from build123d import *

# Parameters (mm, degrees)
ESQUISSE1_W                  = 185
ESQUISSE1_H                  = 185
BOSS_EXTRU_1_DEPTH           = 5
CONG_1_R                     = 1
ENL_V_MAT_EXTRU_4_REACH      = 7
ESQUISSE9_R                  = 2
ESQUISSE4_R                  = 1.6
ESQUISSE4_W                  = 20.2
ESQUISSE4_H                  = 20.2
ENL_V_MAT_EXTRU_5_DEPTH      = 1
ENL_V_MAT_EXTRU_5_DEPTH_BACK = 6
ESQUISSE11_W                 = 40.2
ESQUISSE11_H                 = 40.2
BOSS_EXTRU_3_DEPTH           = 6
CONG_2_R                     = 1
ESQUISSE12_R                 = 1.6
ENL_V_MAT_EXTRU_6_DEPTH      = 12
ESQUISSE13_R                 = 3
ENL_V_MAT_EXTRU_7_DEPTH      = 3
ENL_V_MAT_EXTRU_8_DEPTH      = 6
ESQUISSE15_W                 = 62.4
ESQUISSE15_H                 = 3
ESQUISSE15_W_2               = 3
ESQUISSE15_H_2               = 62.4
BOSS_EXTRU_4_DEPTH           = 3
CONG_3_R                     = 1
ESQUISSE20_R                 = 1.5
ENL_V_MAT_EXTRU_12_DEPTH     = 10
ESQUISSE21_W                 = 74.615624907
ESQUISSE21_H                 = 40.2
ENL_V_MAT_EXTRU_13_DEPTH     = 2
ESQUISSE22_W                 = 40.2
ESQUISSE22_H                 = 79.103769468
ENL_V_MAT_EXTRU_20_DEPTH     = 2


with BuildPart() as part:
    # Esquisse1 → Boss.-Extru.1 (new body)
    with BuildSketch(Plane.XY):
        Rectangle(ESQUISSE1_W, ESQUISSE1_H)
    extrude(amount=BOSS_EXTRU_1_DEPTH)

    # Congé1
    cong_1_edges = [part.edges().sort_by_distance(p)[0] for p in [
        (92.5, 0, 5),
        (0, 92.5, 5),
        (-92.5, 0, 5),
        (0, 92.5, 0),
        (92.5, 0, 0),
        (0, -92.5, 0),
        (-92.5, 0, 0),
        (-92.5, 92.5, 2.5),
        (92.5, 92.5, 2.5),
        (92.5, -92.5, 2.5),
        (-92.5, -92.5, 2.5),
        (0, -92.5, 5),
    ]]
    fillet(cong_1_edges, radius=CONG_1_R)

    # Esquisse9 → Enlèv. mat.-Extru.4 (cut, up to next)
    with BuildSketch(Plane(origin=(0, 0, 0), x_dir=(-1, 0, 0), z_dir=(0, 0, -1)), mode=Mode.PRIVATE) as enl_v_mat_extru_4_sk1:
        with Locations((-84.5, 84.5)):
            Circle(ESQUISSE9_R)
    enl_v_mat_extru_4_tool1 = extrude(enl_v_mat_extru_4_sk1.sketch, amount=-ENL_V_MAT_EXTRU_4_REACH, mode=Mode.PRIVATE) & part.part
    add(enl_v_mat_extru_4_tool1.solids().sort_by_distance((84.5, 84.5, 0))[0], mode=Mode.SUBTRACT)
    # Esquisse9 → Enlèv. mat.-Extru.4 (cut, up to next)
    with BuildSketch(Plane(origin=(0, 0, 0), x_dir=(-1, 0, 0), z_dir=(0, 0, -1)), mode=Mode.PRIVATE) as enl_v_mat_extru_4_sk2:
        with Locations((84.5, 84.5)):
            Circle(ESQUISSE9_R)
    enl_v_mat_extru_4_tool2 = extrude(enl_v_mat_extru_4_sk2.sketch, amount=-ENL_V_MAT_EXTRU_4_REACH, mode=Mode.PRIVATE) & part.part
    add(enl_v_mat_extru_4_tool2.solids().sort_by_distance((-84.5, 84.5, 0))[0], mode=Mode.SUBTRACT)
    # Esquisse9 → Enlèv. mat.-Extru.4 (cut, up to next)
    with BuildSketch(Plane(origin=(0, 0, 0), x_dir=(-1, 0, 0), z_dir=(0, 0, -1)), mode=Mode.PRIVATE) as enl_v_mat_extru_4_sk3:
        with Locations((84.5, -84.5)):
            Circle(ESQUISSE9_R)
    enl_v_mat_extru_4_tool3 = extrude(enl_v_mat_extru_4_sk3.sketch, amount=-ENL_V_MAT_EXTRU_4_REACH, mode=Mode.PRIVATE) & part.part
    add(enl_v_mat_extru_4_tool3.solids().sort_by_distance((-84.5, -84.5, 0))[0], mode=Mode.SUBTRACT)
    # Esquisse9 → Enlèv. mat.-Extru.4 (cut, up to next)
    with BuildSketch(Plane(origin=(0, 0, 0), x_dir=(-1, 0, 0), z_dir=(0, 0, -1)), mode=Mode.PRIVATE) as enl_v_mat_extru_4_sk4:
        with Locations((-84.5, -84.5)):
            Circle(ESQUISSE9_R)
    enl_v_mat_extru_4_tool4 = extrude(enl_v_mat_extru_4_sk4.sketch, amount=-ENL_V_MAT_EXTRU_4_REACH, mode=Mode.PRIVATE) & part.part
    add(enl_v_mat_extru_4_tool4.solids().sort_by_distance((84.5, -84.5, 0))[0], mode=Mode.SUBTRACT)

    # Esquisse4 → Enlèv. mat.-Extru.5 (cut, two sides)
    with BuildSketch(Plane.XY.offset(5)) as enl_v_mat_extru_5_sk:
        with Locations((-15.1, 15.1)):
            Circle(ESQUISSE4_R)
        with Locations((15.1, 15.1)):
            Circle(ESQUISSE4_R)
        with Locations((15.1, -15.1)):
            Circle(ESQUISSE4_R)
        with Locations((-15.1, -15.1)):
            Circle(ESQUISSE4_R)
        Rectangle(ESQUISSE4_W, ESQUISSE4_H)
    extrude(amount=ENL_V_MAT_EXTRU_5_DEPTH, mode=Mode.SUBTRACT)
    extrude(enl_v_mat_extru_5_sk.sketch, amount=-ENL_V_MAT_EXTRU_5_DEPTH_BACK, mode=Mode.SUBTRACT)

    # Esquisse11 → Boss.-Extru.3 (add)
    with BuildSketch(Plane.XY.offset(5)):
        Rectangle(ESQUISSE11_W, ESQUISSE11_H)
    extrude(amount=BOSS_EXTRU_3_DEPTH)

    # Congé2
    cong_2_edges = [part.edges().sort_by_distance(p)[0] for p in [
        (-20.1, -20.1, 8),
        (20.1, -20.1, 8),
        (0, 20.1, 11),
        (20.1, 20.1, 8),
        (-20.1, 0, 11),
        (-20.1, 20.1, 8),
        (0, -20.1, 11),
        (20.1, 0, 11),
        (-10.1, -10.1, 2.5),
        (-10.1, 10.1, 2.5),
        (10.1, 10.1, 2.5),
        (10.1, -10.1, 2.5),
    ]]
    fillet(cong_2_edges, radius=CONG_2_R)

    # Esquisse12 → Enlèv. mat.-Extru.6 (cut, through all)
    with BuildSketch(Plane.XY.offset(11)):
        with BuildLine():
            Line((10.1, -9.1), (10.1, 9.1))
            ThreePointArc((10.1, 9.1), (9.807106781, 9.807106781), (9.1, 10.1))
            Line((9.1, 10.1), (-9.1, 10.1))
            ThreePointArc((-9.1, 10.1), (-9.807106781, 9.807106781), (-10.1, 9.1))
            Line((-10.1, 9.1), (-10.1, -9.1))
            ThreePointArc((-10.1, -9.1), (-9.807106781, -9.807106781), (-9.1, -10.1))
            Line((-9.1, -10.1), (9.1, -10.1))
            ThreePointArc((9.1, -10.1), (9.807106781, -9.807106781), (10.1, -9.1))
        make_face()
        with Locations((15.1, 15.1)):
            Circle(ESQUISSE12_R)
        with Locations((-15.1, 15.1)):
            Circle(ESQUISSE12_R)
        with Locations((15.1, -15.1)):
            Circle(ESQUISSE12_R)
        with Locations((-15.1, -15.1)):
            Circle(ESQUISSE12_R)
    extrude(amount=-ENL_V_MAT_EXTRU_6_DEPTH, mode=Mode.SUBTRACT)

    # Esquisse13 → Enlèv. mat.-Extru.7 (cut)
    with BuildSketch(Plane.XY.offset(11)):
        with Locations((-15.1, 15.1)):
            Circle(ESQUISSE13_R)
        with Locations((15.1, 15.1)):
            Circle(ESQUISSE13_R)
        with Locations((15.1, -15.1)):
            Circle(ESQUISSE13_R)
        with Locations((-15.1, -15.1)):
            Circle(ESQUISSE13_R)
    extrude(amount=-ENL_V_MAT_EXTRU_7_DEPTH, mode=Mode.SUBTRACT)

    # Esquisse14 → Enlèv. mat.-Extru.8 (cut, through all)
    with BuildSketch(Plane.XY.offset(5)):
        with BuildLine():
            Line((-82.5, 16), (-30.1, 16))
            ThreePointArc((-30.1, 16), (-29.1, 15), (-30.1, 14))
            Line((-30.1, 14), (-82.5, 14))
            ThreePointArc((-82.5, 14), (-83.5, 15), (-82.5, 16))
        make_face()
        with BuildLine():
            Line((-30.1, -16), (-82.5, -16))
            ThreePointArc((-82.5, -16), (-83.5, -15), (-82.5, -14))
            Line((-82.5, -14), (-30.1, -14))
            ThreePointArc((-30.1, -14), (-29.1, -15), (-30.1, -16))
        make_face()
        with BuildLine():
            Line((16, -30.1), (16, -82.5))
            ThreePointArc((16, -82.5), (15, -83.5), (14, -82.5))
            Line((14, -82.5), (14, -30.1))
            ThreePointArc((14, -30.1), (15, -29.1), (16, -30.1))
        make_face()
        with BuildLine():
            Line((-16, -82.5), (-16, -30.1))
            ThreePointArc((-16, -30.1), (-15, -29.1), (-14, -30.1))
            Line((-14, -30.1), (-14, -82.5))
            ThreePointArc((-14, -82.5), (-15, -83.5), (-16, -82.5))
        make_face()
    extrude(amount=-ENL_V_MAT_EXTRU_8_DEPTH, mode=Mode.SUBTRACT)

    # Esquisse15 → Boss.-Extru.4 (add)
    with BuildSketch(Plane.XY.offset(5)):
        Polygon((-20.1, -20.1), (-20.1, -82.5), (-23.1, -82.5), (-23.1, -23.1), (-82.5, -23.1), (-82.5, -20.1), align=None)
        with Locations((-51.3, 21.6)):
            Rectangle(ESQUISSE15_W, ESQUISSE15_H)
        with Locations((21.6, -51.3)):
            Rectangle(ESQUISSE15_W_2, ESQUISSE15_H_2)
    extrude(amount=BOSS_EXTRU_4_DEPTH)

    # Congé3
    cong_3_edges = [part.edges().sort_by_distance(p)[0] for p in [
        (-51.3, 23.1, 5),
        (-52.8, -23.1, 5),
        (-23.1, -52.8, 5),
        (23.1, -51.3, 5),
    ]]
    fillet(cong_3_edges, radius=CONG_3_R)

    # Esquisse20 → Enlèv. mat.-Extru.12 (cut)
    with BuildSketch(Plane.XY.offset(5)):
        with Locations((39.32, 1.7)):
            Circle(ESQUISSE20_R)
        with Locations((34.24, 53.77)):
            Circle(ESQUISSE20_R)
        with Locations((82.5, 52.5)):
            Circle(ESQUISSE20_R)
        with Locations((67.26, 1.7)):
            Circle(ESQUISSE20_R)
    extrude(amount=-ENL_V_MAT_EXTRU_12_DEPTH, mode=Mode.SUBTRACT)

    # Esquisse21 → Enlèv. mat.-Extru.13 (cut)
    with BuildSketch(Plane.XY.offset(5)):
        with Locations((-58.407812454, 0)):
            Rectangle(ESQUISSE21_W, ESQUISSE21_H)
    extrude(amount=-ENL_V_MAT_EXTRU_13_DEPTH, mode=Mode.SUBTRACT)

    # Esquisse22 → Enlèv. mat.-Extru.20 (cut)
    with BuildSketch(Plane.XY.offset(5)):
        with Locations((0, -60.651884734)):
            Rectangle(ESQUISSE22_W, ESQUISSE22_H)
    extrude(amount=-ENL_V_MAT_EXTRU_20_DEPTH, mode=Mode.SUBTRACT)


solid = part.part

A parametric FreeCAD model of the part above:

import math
import FreeCAD as App
import Part
import Sketcher
from FreeCAD import Vector
Q = App.Units.Quantity


def edges_at(feature, points):
    """Names of the edges that pass closest to the given points."""
    edges = feature.Shape.Edges
    near = lambda p: min(range(len(edges)), key=lambda i: edges[i].distToShape(Part.Vertex(*p))[0])
    return sorted({f"Edge{near(p) + 1}" for p in points})

doc = App.newDocument("Part")
params = doc.addObject("Spreadsheet::Sheet", "Params")
for row, (alias, value) in enumerate([
    ("sketch1_width", "185 mm"),
    ("pad1_length", "5 mm"),
    ("fillet_radius", "1 mm"),
    ("sketch2_diameter", "4 mm"),
    ("sketch3_diameter", "4 mm"),
    ("sketch4_diameter", "4 mm"),
    ("sketch5_diameter", "4 mm"),
    ("sketch6_diameter", "3.2 mm"),
    ("sketch6_width", "20.2 mm"),
    ("sketch7_width", "40.2 mm"),
    ("pad2_length", "6 mm"),
    ("fillet2_radius", "1 mm"),
    ("sketch8_radius", "1 mm"),
    ("sketch8_diameter", "3.2 mm"),
    ("sketch8_width", "18.2 mm"),
    ("sketch9_diameter", "6 mm"),
    ("pocket7_length", "3 mm"),
    ("sketch10_radius", "1 mm"),
    ("sketch10_width", "52.4 mm"),
    ("sketch11_width", "3 mm"),
    ("sketch11_width2", "62.4 mm"),
    ("pad3_length", "3 mm"),
    ("fillet3_radius", "1 mm"),
    ("sketch12_diameter", "3 mm"),
    ("pocket9_length", "10 mm"),
    ("sketch13_height", "40.2 mm"),
    ("pocket10_length", "2 mm"),
    ("sketch14_width", "40.2 mm"),
    ("pocket11_length", "2 mm"),
], start=1):
    params.set(f"A{row}", alias)
    params.set(f"B{row}", "=" + value)
    params.setAlias(f"B{row}", alias)

body = doc.addObject("PartDesign::Body", "Body")

# Sketch on XY plane
sketch1 = doc.addObject("Sketcher::SketchObject", "Sketch")
body.addObject(sketch1)
sketch1.AttachmentSupport = (doc.XY_Plane, [""])
sketch1.MapMode = "FlatFace"
sketch1.addGeometry([
    Part.LineSegment(Vector(-92, 92, 0), Vector(-92, -92, 0)),
    Part.LineSegment(Vector(-92, -92, 0), Vector(92, -92, 0)),
    Part.LineSegment(Vector(92, -92, 0), Vector(92, 92, 0)),
    Part.LineSegment(Vector(92, 92, 0), Vector(-92, 92, 0)),
], False)
sketch1.addConstraint([
    Sketcher.Constraint("Coincident", 0, 2, 1, 1),
    Sketcher.Constraint("Coincident", 1, 2, 2, 1),
    Sketcher.Constraint("Coincident", 2, 2, 3, 1),
    Sketcher.Constraint("Coincident", 3, 2, 0, 1),
    Sketcher.Constraint("Vertical", 0),
    Sketcher.Constraint("Horizontal", 1),
    Sketcher.Constraint("Vertical", 2),
    Sketcher.Constraint("Horizontal", 3),
    Sketcher.Constraint("Symmetric", 0, 2, 2, 2, -1, 1),
    Sketcher.Constraint("Equal", 3, 0),
    Sketcher.Constraint("DistanceX", 1, 1, 1, 2, Q("185 mm")),
])
sketch1.setExpression("Constraints[10]", "Params.sketch1_width")
pad1 = doc.addObject("PartDesign::Pad", "Pad")
body.addObject(pad1)
pad1.Profile = sketch1
pad1.setExpression("Length", "Params.pad1_length")
doc.recompute()

fillet = doc.addObject("PartDesign::Fillet", "Fillet")
body.addObject(fillet)
fillet.Base = (pad1, ["Edge1"])
fillet.UseAllEdges = True
fillet.setExpression("Radius", "Params.fillet_radius")

# Sketch on XY plane
sketch2 = doc.addObject("Sketcher::SketchObject", "Sketch001")
body.addObject(sketch2)
sketch2.AttachmentSupport = (doc.XY_Plane, [""])
sketch2.MapMode = "FlatFace"
sketch2.addGeometry(Part.Circle(Vector(84.5, 84.5, 0), Vector(0, 0, 1), 2), False)
sketch2.addConstraint([
    Sketcher.Constraint("Diameter", 0, Q("4 mm")),
    Sketcher.Constraint("DistanceX", -1, 1, 0, 3, Q("84.5 mm")),
    Sketcher.Constraint("DistanceY", -1, 1, 0, 3, Q("84.5 mm")),
])
sketch2.setExpression("Constraints[0]", "Params.sketch2_diameter")
pocket1 = doc.addObject("PartDesign::Pocket", "Pocket")
body.addObject(pocket1)
pocket1.Profile = sketch2
pocket1.Type = "UpToFirst"
pocket1.Reversed = True

# Sketch on XY plane
sketch3 = doc.addObject("Sketcher::SketchObject", "Sketch002")
body.addObject(sketch3)
sketch3.AttachmentSupport = (doc.XY_Plane, [""])
sketch3.MapMode = "FlatFace"
sketch3.addGeometry(Part.Circle(Vector(-84.5, 84.5, 0), Vector(0, 0, 1), 2), False)
sketch3.addConstraint([
    Sketcher.Constraint("Diameter", 0, Q("4 mm")),
    Sketcher.Constraint("DistanceX", 0, 3, -1, 1, Q("84.5 mm")),
    Sketcher.Constraint("DistanceY", -1, 1, 0, 3, Q("84.5 mm")),
])
sketch3.setExpression("Constraints[0]", "Params.sketch3_diameter")
pocket2 = doc.addObject("PartDesign::Pocket", "Pocket001")
body.addObject(pocket2)
pocket2.Profile = sketch3
pocket2.Type = "UpToFirst"
pocket2.Reversed = True

# Sketch on XY plane
sketch4 = doc.addObject("Sketcher::SketchObject", "Sketch003")
body.addObject(sketch4)
sketch4.AttachmentSupport = (doc.XY_Plane, [""])
sketch4.MapMode = "FlatFace"
sketch4.addGeometry(Part.Circle(Vector(-84.5, -84.5, 0), Vector(0, 0, 1), 2), False)
sketch4.addConstraint([
    Sketcher.Constraint("Diameter", 0, Q("4 mm")),
    Sketcher.Constraint("DistanceX", 0, 3, -1, 1, Q("84.5 mm")),
    Sketcher.Constraint("DistanceY", 0, 3, -1, 1, Q("84.5 mm")),
])
sketch4.setExpression("Constraints[0]", "Params.sketch4_diameter")
pocket3 = doc.addObject("PartDesign::Pocket", "Pocket002")
body.addObject(pocket3)
pocket3.Profile = sketch4
pocket3.Type = "UpToFirst"
pocket3.Reversed = True

# Sketch on XY plane
sketch5 = doc.addObject("Sketcher::SketchObject", "Sketch004")
body.addObject(sketch5)
sketch5.AttachmentSupport = (doc.XY_Plane, [""])
sketch5.MapMode = "FlatFace"
sketch5.addGeometry(Part.Circle(Vector(84.5, -84.5, 0), Vector(0, 0, 1), 2), False)
sketch5.addConstraint([
    Sketcher.Constraint("Diameter", 0, Q("4 mm")),
    Sketcher.Constraint("DistanceX", -1, 1, 0, 3, Q("84.5 mm")),
    Sketcher.Constraint("DistanceY", 0, 3, -1, 1, Q("84.5 mm")),
])
sketch5.setExpression("Constraints[0]", "Params.sketch5_diameter")
pocket4 = doc.addObject("PartDesign::Pocket", "Pocket003")
body.addObject(pocket4)
pocket4.Profile = sketch5
pocket4.Type = "UpToFirst"
pocket4.Reversed = True

# Sketch on XY plane
sketch6 = doc.addObject("Sketcher::SketchObject", "Sketch005")
body.addObject(sketch6)
sketch6.AttachmentSupport = (doc.XY_Plane, [""])
sketch6.MapMode = "FlatFace"
sketch6.AttachmentOffset = App.Placement(Vector(0, 0, 5), App.Rotation())
sketch6.addGeometry([
    Part.Circle(Vector(-15.1, 15.1, 0), Vector(0, 0, 1), 1.6),  # 0
    Part.Circle(Vector(15.1, 15.1, 0), Vector(0, 0, 1), 1.6),  # 1
    Part.Circle(Vector(15.1, -15.1, 0), Vector(0, 0, 1), 1.6),  # 2
    Part.Circle(Vector(-15.1, -15.1, 0), Vector(0, 0, 1), 1.6),  # 3
    Part.LineSegment(Vector(-10.1, 10.1, 0), Vector(-10.1, -10.1, 0)),  # 4
    Part.LineSegment(Vector(-10.1, -10.1, 0), Vector(10.1, -10.1, 0)),  # 5
    Part.LineSegment(Vector(10.1, -10.1, 0), Vector(10.1, 10.1, 0)),  # 6
    Part.LineSegment(Vector(10.1, 10.1, 0), Vector(-10.1, 10.1, 0)),  # 7
], False)
sketch6.addConstraint([
    Sketcher.Constraint("Coincident", 4, 2, 5, 1),
    Sketcher.Constraint("Coincident", 5, 2, 6, 1),
    Sketcher.Constraint("Coincident", 6, 2, 7, 1),
    Sketcher.Constraint("Coincident", 7, 2, 4, 1),
    Sketcher.Constraint("Vertical", 4),
    Sketcher.Constraint("Horizontal", 5),
    Sketcher.Constraint("Vertical", 6),
    Sketcher.Constraint("Horizontal", 7),
    Sketcher.Constraint("Equal", 0, 1),
    Sketcher.Constraint("Equal", 1, 2),
    Sketcher.Constraint("Equal", 2, 3),
    Sketcher.Constraint("Symmetric", 0, 3, 2, 3, -1, 1),
    Sketcher.Constraint("Symmetric", 1, 3, 3, 3, -1, 1),
    Sketcher.Constraint("Symmetric", 4, 2, 6, 2, -1, 1),
    Sketcher.Constraint("Symmetric", 0, 3, 1, 3, -2),
    Sketcher.Constraint("Equal", 7, 4),
    Sketcher.Constraint("Diameter", 0, Q("3.2 mm")),
    Sketcher.Constraint("DistanceX", 5, 1, 5, 2, Q("20.2 mm")),
    Sketcher.Constraint("DistanceX", 3, 3, 4, 2, Q("5 mm")),
    Sketcher.Constraint("DistanceY", 3, 3, 4, 2, Q("5 mm")),
])
sketch6.setExpression("Constraints[16]", "Params.sketch6_diameter")
sketch6.setExpression("Constraints[17]", "Params.sketch6_width")
pocket5 = doc.addObject("PartDesign::Pocket", "Pocket004")
body.addObject(pocket5)
pocket5.Profile = sketch6
pocket5.Type = "ThroughAll"
pocket5.Midplane = True

# Sketch on XY plane
sketch7 = doc.addObject("Sketcher::SketchObject", "Sketch006")
body.addObject(sketch7)
sketch7.AttachmentSupport = (doc.XY_Plane, [""])
sketch7.MapMode = "FlatFace"
sketch7.AttachmentOffset = App.Placement(Vector(0, 0, 5), App.Rotation())
sketch7.addGeometry([
    Part.LineSegment(Vector(-20, 20, 0), Vector(-20, -20, 0)),
    Part.LineSegment(Vector(-20, -20, 0), Vector(20, -20, 0)),
    Part.LineSegment(Vector(20, -20, 0), Vector(20, 20, 0)),
    Part.LineSegment(Vector(20, 20, 0), Vector(-20, 20, 0)),
], False)
sketch7.addConstraint([
    Sketcher.Constraint("Coincident", 0, 2, 1, 1),
    Sketcher.Constraint("Coincident", 1, 2, 2, 1),
    Sketcher.Constraint("Coincident", 2, 2, 3, 1),
    Sketcher.Constraint("Coincident", 3, 2, 0, 1),
    Sketcher.Constraint("Vertical", 0),
    Sketcher.Constraint("Horizontal", 1),
    Sketcher.Constraint("Vertical", 2),
    Sketcher.Constraint("Horizontal", 3),
    Sketcher.Constraint("Symmetric", 0, 2, 2, 2, -1, 1),
    Sketcher.Constraint("Equal", 3, 0),
    Sketcher.Constraint("DistanceX", 1, 1, 1, 2, Q("40.2 mm")),
])
sketch7.setExpression("Constraints[10]", "Params.sketch7_width")
pad2 = doc.addObject("PartDesign::Pad", "Pad001")
body.addObject(pad2)
pad2.Profile = sketch7
pad2.setExpression("Length", "Params.pad2_length")
doc.recompute()

fillet2 = doc.addObject("PartDesign::Fillet", "Fillet001")
body.addObject(fillet2)
fillet2.Base = (pad2, edges_at(pad2, [
    (-20.1, -20.1, 8),
    (20.1, -20.1, 8),
    (0, 20.1, 11),
    (20.1, 20.1, 8),
    (-20.1, 0, 11),
    (-20.1, 20.1, 8),
    (0, -20.1, 11),
    (20.1, 0, 11),
    (-10.1, -10.1, 2.5),
    (-10.1, 10.1, 2.5),
    (10.1, 10.1, 2.5),
    (10.1, -10.1, 2.5),
]))
fillet2.setExpression("Radius", "Params.fillet2_radius")

# Sketch on XY plane
sketch8 = doc.addObject("Sketcher::SketchObject", "Sketch007")
body.addObject(sketch8)
sketch8.AttachmentSupport = (doc.XY_Plane, [""])
sketch8.MapMode = "FlatFace"
sketch8.AttachmentOffset = App.Placement(Vector(0, 0, 11), App.Rotation())
sketch8.addGeometry([
    Part.LineSegment(Vector(10.1, -9.1, 0), Vector(10.1, 9.1, 0)),  # 0
    Part.ArcOfCircle(Part.Circle(Vector(9.1, 9.1, 0), Vector(0, 0, 1), 1), math.radians(0), math.radians(90)),  # 1
    Part.LineSegment(Vector(9.1, 10.1, 0), Vector(-9.1, 10.1, 0)),  # 2
    Part.ArcOfCircle(Part.Circle(Vector(-9.1, 9.1, 0), Vector(0, 0, 1), 1), math.radians(90), math.radians(180)),  # 3
    Part.LineSegment(Vector(-10.1, 9.1, 0), Vector(-10.1, -9.1, 0)),  # 4
    Part.ArcOfCircle(Part.Circle(Vector(-9.1, -9.1, 0), Vector(0, 0, 1), 1), math.radians(-180), math.radians(-90)),  # 5
    Part.LineSegment(Vector(-9.1, -10.1, 0), Vector(9.1, -10.1, 0)),  # 6
    Part.ArcOfCircle(Part.Circle(Vector(9.1, -9.1, 0), Vector(0, 0, 1), 1), math.radians(-90), math.radians(0)),  # 7
    Part.Circle(Vector(15.1, 15.1, 0), Vector(0, 0, 1), 1.6),  # 8
    Part.Circle(Vector(-15.1, 15.1, 0), Vector(0, 0, 1), 1.6),  # 9
    Part.Circle(Vector(15.1, -15.1, 0), Vector(0, 0, 1), 1.6),  # 10
    Part.Circle(Vector(-15.1, -15.1, 0), Vector(0, 0, 1), 1.6),  # 11
], False)
sketch8.addConstraint([
    Sketcher.Constraint("Tangent", 0, 2, 1, 1),
    Sketcher.Constraint("Tangent", 1, 2, 2, 1),
    Sketcher.Constraint("Tangent", 2, 2, 3, 1),
    Sketcher.Constraint("Tangent", 3, 2, 4, 1),
    Sketcher.Constraint("Tangent", 4, 2, 5, 1),
    Sketcher.Constraint("Tangent", 5, 2, 6, 1),
    Sketcher.Constraint("Tangent", 6, 2, 7, 1),
    Sketcher.Constraint("Tangent", 7, 2, 0, 1),
    Sketcher.Constraint("Vertical", 0),
    Sketcher.Constraint("Horizontal", 2),
    Sketcher.Constraint("Vertical", 4),
    Sketcher.Constraint("Horizontal", 6),
    Sketcher.Constraint("Equal", 1, 3),
    Sketcher.Constraint("Equal", 3, 5),
    Sketcher.Constraint("Equal", 5, 7),
    Sketcher.Constraint("Equal", 8, 9),
    Sketcher.Constraint("Equal", 9, 10),
    Sketcher.Constraint("Equal", 10, 11),
    Sketcher.Constraint("Symmetric", 1, 3, 5, 3, -1, 1),
    Sketcher.Constraint("Symmetric", 9, 3, 10, 3, -1, 1),
    Sketcher.Constraint("Symmetric", 8, 3, 11, 3, -1, 1),
    Sketcher.Constraint("Symmetric", 8, 3, 9, 3, -2),
    Sketcher.Constraint("Equal", 6, 0),
    Sketcher.Constraint("Radius", 1, Q("1 mm")),
    Sketcher.Constraint("Diameter", 8, Q("3.2 mm")),
    Sketcher.Constraint("DistanceX", 2, 2, 2, 1, Q("18.2 mm")),
    Sketcher.Constraint("DistanceX", 1, 3, 8, 3, Q("6 mm")),
    Sketcher.Constraint("DistanceY", 1, 3, 8, 3, Q("6 mm")),
])
sketch8.setExpression("Constraints[23]", "Params.sketch8_radius")
sketch8.setExpression("Constraints[24]", "Params.sketch8_diameter")
sketch8.setExpression("Constraints[25]", "Params.sketch8_width")
pocket6 = doc.addObject("PartDesign::Pocket", "Pocket005")
body.addObject(pocket6)
pocket6.Profile = sketch8
pocket6.Type = "ThroughAll"

# Sketch on XY plane
sketch9 = doc.addObject("Sketcher::SketchObject", "Sketch008")
body.addObject(sketch9)
sketch9.AttachmentSupport = (doc.XY_Plane, [""])
sketch9.MapMode = "FlatFace"
sketch9.AttachmentOffset = App.Placement(Vector(0, 0, 11), App.Rotation())
sketch9.addGeometry([
    Part.Circle(Vector(-15.1, 15.1, 0), Vector(0, 0, 1), 3),
    Part.Circle(Vector(15.1, 15.1, 0), Vector(0, 0, 1), 3),
    Part.Circle(Vector(15.1, -15.1, 0), Vector(0, 0, 1), 3),
    Part.Circle(Vector(-15.1, -15.1, 0), Vector(0, 0, 1), 3),
], False)
sketch9.addConstraint([
    Sketcher.Constraint("Equal", 0, 1),
    Sketcher.Constraint("Equal", 1, 2),
    Sketcher.Constraint("Equal", 2, 3),
    Sketcher.Constraint("Symmetric", 0, 3, 2, 3, -1, 1),
    Sketcher.Constraint("Symmetric", 1, 3, 3, 3, -1, 1),
    Sketcher.Constraint("Symmetric", 0, 3, 1, 3, -2),
    Sketcher.Constraint("Diameter", 0, Q("6 mm")),
    Sketcher.Constraint("DistanceX", 0, 3, -1, 1, Q("15.1 mm")),
    Sketcher.Constraint("DistanceY", -1, 1, 0, 3, Q("15.1 mm")),
])
sketch9.setExpression("Constraints[6]", "Params.sketch9_diameter")
pocket7 = doc.addObject("PartDesign::Pocket", "Pocket006")
body.addObject(pocket7)
pocket7.Profile = sketch9
pocket7.setExpression("Length", "Params.pocket7_length")

# Sketch on XY plane
sketch10 = doc.addObject("Sketcher::SketchObject", "Sketch009")
body.addObject(sketch10)
sketch10.AttachmentSupport = (doc.XY_Plane, [""])
sketch10.MapMode = "FlatFace"
sketch10.AttachmentOffset = App.Placement(Vector(0, 0, 5), App.Rotation())
sketch10.addGeometry([
    Part.LineSegment(Vector(-30.1, 16, 0), Vector(-82.5, 16, 0)),  # 0
    Part.ArcOfCircle(Part.Circle(Vector(-82.5, 15, 0), Vector(0, 0, 1), 1), math.radians(90), math.radians(270)),  # 1
    Part.LineSegment(Vector(-82.5, 14, 0), Vector(-30.1, 14, 0)),  # 2
    Part.ArcOfCircle(Part.Circle(Vector(-30.1, 15, 0), Vector(0, 0, 1), 1), math.radians(-90), math.radians(90)),  # 3
    Part.LineSegment(Vector(-82.5, -16, 0), Vector(-30.1, -16, 0)),  # 4
    Part.ArcOfCircle(Part.Circle(Vector(-30.1, -15, 0), Vector(0, 0, 1), 1), math.radians(-90), math.radians(90)),  # 5
    Part.LineSegment(Vector(-30.1, -14, 0), Vector(-82.5, -14, 0)),  # 6
    Part.ArcOfCircle(Part.Circle(Vector(-82.5, -15, 0), Vector(0, 0, 1), 1), math.radians(90), math.radians(270)),  # 7
    Part.LineSegment(Vector(16, -82.5, 0), Vector(16, -30.1, 0)),  # 8
    Part.ArcOfCircle(Part.Circle(Vector(15, -30.1, 0), Vector(0, 0, 1), 1), math.radians(0), math.radians(180)),  # 9
    Part.LineSegment(Vector(14, -30.1, 0), Vector(14, -82.5, 0)),  # 10
    Part.ArcOfCircle(Part.Circle(Vector(15, -82.5, 0), Vector(0, 0, 1), 1), math.radians(180), math.radians(360)),  # 11
    Part.LineSegment(Vector(-16, -30.1, 0), Vector(-16, -82.5, 0)),  # 12
    Part.ArcOfCircle(Part.Circle(Vector(-15, -82.5, 0), Vector(0, 0, 1), 1), math.radians(180), math.radians(360)),  # 13
    Part.LineSegment(Vector(-14, -82.5, 0), Vector(-14, -30.1, 0)),  # 14
    Part.ArcOfCircle(Part.Circle(Vector(-15, -30.1, 0), Vector(0, 0, 1), 1), math.radians(0), math.radians(180)),  # 15
], False)
sketch10.addConstraint([
    Sketcher.Constraint("Tangent", 0, 2, 1, 1),
    Sketcher.Constraint("Tangent", 1, 2, 2, 1),
    Sketcher.Constraint("Tangent", 2, 2, 3, 1),
    Sketcher.Constraint("Tangent", 3, 2, 0, 1),
    Sketcher.Constraint("Tangent", 4, 2, 5, 1),
    Sketcher.Constraint("Tangent", 5, 2, 6, 1),
    Sketcher.Constraint("Tangent", 6, 2, 7, 1),
    Sketcher.Constraint("Tangent", 7, 2, 4, 1),
    Sketcher.Constraint("Tangent", 8, 2, 9, 1),
    Sketcher.Constraint("Tangent", 9, 2, 10, 1),
    Sketcher.Constraint("Tangent", 10, 2, 11, 1),
    Sketcher.Constraint("Tangent", 11, 2, 8, 1),
    Sketcher.Constraint("Tangent", 12, 2, 13, 1),
    Sketcher.Constraint("Tangent", 13, 2, 14, 1),
    Sketcher.Constraint("Tangent", 14, 2, 15, 1),
    Sketcher.Constraint("Tangent", 15, 2, 12, 1),
    Sketcher.Constraint("Horizontal", 0),
    Sketcher.Constraint("Horizontal", 2),
    Sketcher.Constraint("Horizontal", 4),
    Sketcher.Constraint("Horizontal", 6),
    Sketcher.Constraint("Vertical", 8),
    Sketcher.Constraint("Vertical", 10),
    Sketcher.Constraint("Vertical", 12),
    Sketcher.Constraint("Vertical", 14),
    Sketcher.Constraint("Equal", 3, 5),
    Sketcher.Constraint("Equal", 7, 9),
    Sketcher.Constraint("Equal", 11, 13),
    Sketcher.Constraint("Symmetric", 11, 3, 13, 3, -2),
    Sketcher.Constraint("Symmetric", 3, 3, 5, 3, -1),
    Sketcher.Constraint("Horizontal", 9, 3, 15, 3),
    Sketcher.Constraint("Vertical", 1, 3, 7, 3),
    Sketcher.Constraint("Equal", 6, 8),
    Sketcher.Constraint("Radius", 1, Q("1 mm")),
    Sketcher.Constraint("DistanceX", 0, 2, 0, 1, Q("52.4 mm")),
    Sketcher.Constraint("DistanceY", -1, 1, 1, 3, Q("15 mm")),
    Sketcher.Constraint("DistanceX", -1, 1, 9, 3, Q("15 mm")),
    Sketcher.Constraint("DistanceX", 1, 3, -1, 1, Q("82.5 mm")),
    Sketcher.Constraint("DistanceY", 9, 3, -1, 1, Q("30.1 mm")),
])
sketch10.setExpression("Constraints[32]", "Params.sketch10_radius")
sketch10.setExpression("Constraints[33]", "Params.sketch10_width")
pocket8 = doc.addObject("PartDesign::Pocket", "Pocket007")
body.addObject(pocket8)
pocket8.Profile = sketch10
pocket8.Type = "ThroughAll"

# Sketch on XY plane
sketch11 = doc.addObject("Sketcher::SketchObject", "Sketch010")
body.addObject(sketch11)
sketch11.AttachmentSupport = (doc.XY_Plane, [""])
sketch11.MapMode = "FlatFace"
sketch11.AttachmentOffset = App.Placement(Vector(0, 0, 5), App.Rotation())
sketch11.addGeometry([
    Part.LineSegment(Vector(-20.1, -82.5, 0), Vector(-20.1, -20.1, 0)),  # 0
    Part.LineSegment(Vector(-20.1, -20.1, 0), Vector(-82.5, -20.1, 0)),  # 1
    Part.LineSegment(Vector(-82.5, -20.1, 0), Vector(-82.5, -23.1, 0)),  # 2
    Part.LineSegment(Vector(-82.5, -23.1, 0), Vector(-23.1, -23.1, 0)),  # 3
    Part.LineSegment(Vector(-23.1, -23.1, 0), Vector(-23.1, -82.5, 0)),  # 4
    Part.LineSegment(Vector(-23.1, -82.5, 0), Vector(-20.1, -82.5, 0)),  # 5
    Part.LineSegment(Vector(-82.5, 23.1, 0), Vector(-82.5, 20.1, 0)),  # 6
    Part.LineSegment(Vector(-82.5, 20.1, 0), Vector(-20.1, 20.1, 0)),  # 7
    Part.LineSegment(Vector(-20.1, 20.1, 0), Vector(-20.1, 23.1, 0)),  # 8
    Part.LineSegment(Vector(-20.1, 23.1, 0), Vector(-82.5, 23.1, 0)),  # 9
    Part.LineSegment(Vector(20.1, -20.1, 0), Vector(20.1, -82.5, 0)),  # 10
    Part.LineSegment(Vector(20.1, -82.5, 0), Vector(23.1, -82.5, 0)),  # 11
    Part.LineSegment(Vector(23.1, -82.5, 0), Vector(23.1, -20.1, 0)),  # 12
    Part.LineSegment(Vector(23.1, -20.1, 0), Vector(20.1, -20.1, 0)),  # 13
], False)
sketch11.addConstraint([
    Sketcher.Constraint("Coincident", 0, 2, 1, 1),
    Sketcher.Constraint("Coincident", 1, 2, 2, 1),
    Sketcher.Constraint("Coincident", 2, 2, 3, 1),
    Sketcher.Constraint("Coincident", 3, 2, 4, 1),
    Sketcher.Constraint("Coincident", 4, 2, 5, 1),
    Sketcher.Constraint("Coincident", 5, 2, 0, 1),
    Sketcher.Constraint("Coincident", 6, 2, 7, 1),
    Sketcher.Constraint("Coincident", 7, 2, 8, 1),
    Sketcher.Constraint("Coincident", 8, 2, 9, 1),
    Sketcher.Constraint("Coincident", 9, 2, 6, 1),
    Sketcher.Constraint("Coincident", 10, 2, 11, 1),
    Sketcher.Constraint("Coincident", 11, 2, 12, 1),
    Sketcher.Constraint("Coincident", 12, 2, 13, 1),
    Sketcher.Constraint("Coincident", 13, 2, 10, 1),
    Sketcher.Constraint("Vertical", 0),
    Sketcher.Constraint("Horizontal", 1),
    Sketcher.Constraint("Vertical", 2),
    Sketcher.Constraint("Horizontal", 3),
    Sketcher.Constraint("Vertical", 4),
    Sketcher.Constraint("Horizontal", 5),
    Sketcher.Constraint("Vertical", 6),
    Sketcher.Constraint("Horizontal", 7),
    Sketcher.Constraint("Vertical", 8),
    Sketcher.Constraint("Horizontal", 9),
    Sketcher.Constraint("Vertical", 10),
    Sketcher.Constraint("Horizontal", 11),
    Sketcher.Constraint("Vertical", 12),
    Sketcher.Constraint("Horizontal", 13),
    Sketcher.Constraint("Symmetric", 7, 2, 13, 2, -1, 1),
    Sketcher.Constraint("Symmetric", 5, 2, 10, 2, -2),
    Sketcher.Constraint("Symmetric", 1, 2, 6, 2, -1),
    Sketcher.Constraint("Equal", 5, 11),
    Sketcher.Constraint("Equal", 9, 0),
    Sketcher.Constraint("Equal", 13, 2),
    Sketcher.Constraint("Equal", 2, 6),
    Sketcher.Constraint("DistanceX", 5, 1, 5, 2, Q("3 mm")),
    Sketcher.Constraint("DistanceX", 1, 2, 1, 1, Q("62.4 mm")),
    Sketcher.Constraint("DistanceX", 0, 2, -1, 1, Q("20.1 mm")),
    Sketcher.Constraint("DistanceY", 0, 2, -1, 1, Q("20.1 mm")),
])
sketch11.setExpression("Constraints[35]", "Params.sketch11_width")
sketch11.setExpression("Constraints[36]", "Params.sketch11_width2")
pad3 = doc.addObject("PartDesign::Pad", "Pad002")
body.addObject(pad3)
pad3.Profile = sketch11
pad3.setExpression("Length", "Params.pad3_length")
doc.recompute()

fillet3 = doc.addObject("PartDesign::Fillet", "Fillet002")
body.addObject(fillet3)
fillet3.Base = (pad3, edges_at(pad3, [
    (-51.3, 23.1, 5),
    (-52.8, -23.1, 5),
    (-23.1, -52.8, 5),
    (23.1, -51.3, 5),
]))
fillet3.setExpression("Radius", "Params.fillet3_radius")

# Sketch on XY plane
sketch12 = doc.addObject("Sketcher::SketchObject", "Sketch011")
body.addObject(sketch12)
sketch12.AttachmentSupport = (doc.XY_Plane, [""])
sketch12.MapMode = "FlatFace"
sketch12.AttachmentOffset = App.Placement(Vector(0, 0, 5), App.Rotation())
sketch12.addGeometry([
    Part.Circle(Vector(39.3, 1.7, 0), Vector(0, 0, 1), 1.5),
    Part.Circle(Vector(34.2, 53.8, 0), Vector(0, 0, 1), 1.5),
    Part.Circle(Vector(82.5, 52.5, 0), Vector(0, 0, 1), 1.5),
    Part.Circle(Vector(67.3, 1.7, 0), Vector(0, 0, 1), 1.5),
], False)
sketch12.addConstraint([
    Sketcher.Constraint("Equal", 0, 1),
    Sketcher.Constraint("Equal", 1, 2),
    Sketcher.Constraint("Equal", 2, 3),
    Sketcher.Constraint("Horizontal", 0, 3, 3, 3),
    Sketcher.Constraint("Diameter", 0, Q("3 mm")),
    Sketcher.Constraint("DistanceY", -1, 1, 0, 3, Q("1.7 mm")),
    Sketcher.Constraint("DistanceX", -1, 1, 2, 3, Q("82.5 mm")),
    Sketcher.Constraint("DistanceY", -1, 1, 2, 3, Q("52.5 mm")),
    Sketcher.Constraint("DistanceX", -1, 1, 0, 3, Q("39.32 mm")),
    Sketcher.Constraint("DistanceX", -1, 1, 1, 3, Q("34.24 mm")),
    Sketcher.Constraint("DistanceY", -1, 1, 1, 3, Q("53.77 mm")),
    Sketcher.Constraint("DistanceX", -1, 1, 3, 3, Q("67.26 mm")),
])
sketch12.setExpression("Constraints[4]", "Params.sketch12_diameter")
pocket9 = doc.addObject("PartDesign::Pocket", "Pocket008")
body.addObject(pocket9)
pocket9.Profile = sketch12
pocket9.setExpression("Length", "Params.pocket9_length")

# Sketch on XY plane
sketch13 = doc.addObject("Sketcher::SketchObject", "Sketch012")
body.addObject(sketch13)
sketch13.AttachmentSupport = (doc.XY_Plane, [""])
sketch13.MapMode = "FlatFace"
sketch13.AttachmentOffset = App.Placement(Vector(0, 0, 5), App.Rotation())
sketch13.addGeometry([
    Part.LineSegment(Vector(-96, 20, 0), Vector(-96, -20, 0)),
    Part.LineSegment(Vector(-96, -20, 0), Vector(-21, -20, 0)),
    Part.LineSegment(Vector(-21, -20, 0), Vector(-21, 20, 0)),
    Part.LineSegment(Vector(-21, 20, 0), Vector(-96, 20, 0)),
], False)
sketch13.addConstraint([
    Sketcher.Constraint("Coincident", 0, 2, 1, 1),
    Sketcher.Constraint("Coincident", 1, 2, 2, 1),
    Sketcher.Constraint("Coincident", 2, 2, 3, 1),
    Sketcher.Constraint("Coincident", 3, 2, 0, 1),
    Sketcher.Constraint("Vertical", 0),
    Sketcher.Constraint("Horizontal", 1),
    Sketcher.Constraint("Vertical", 2),
    Sketcher.Constraint("Horizontal", 3),
    Sketcher.Constraint("DistanceY", 0, 2, 0, 1, Q("40.2 mm")),
    Sketcher.Constraint("DistanceY", 0, 2, -1, 1, Q("20.1 mm")),
    Sketcher.Constraint("DistanceX", 1, 2, -1, 1, Q("21.1 mm")),
    Sketcher.Constraint("DistanceX", 1, 1, 1, 2, Q("74.615625 mm")),
])
sketch13.setExpression("Constraints[8]", "Params.sketch13_height")
pocket10 = doc.addObject("PartDesign::Pocket", "Pocket009")
body.addObject(pocket10)
pocket10.Profile = sketch13
pocket10.setExpression("Length", "Params.pocket10_length")

# Sketch on XY plane
sketch14 = doc.addObject("Sketcher::SketchObject", "Sketch013")
body.addObject(sketch14)
sketch14.AttachmentSupport = (doc.XY_Plane, [""])
sketch14.MapMode = "FlatFace"
sketch14.AttachmentOffset = App.Placement(Vector(0, 0, 5), App.Rotation())
sketch14.addGeometry([
    Part.LineSegment(Vector(-20, -21, 0), Vector(-20, -100, 0)),
    Part.LineSegment(Vector(-20, -100, 0), Vector(20, -100, 0)),
    Part.LineSegment(Vector(20, -100, 0), Vector(20, -21, 0)),
    Part.LineSegment(Vector(20, -21, 0), Vector(-20, -21, 0)),
], False)
sketch14.addConstraint([
    Sketcher.Constraint("Coincident", 0, 2, 1, 1),
    Sketcher.Constraint("Coincident", 1, 2, 2, 1),
    Sketcher.Constraint("Coincident", 2, 2, 3, 1),
    Sketcher.Constraint("Coincident", 3, 2, 0, 1),
    Sketcher.Constraint("Vertical", 0),
    Sketcher.Constraint("Horizontal", 1),
    Sketcher.Constraint("Vertical", 2),
    Sketcher.Constraint("Horizontal", 3),
    Sketcher.Constraint("DistanceX", 1, 1, 1, 2, Q("40.2 mm")),
    Sketcher.Constraint("DistanceX", 0, 2, -1, 1, Q("20.1 mm")),
    Sketcher.Constraint("DistanceY", 2, 2, -1, 1, Q("21.1 mm")),
    Sketcher.Constraint("DistanceY", 0, 2, 0, 1, Q("79.103769 mm")),
])
sketch14.setExpression("Constraints[8]", "Params.sketch14_width")
pocket11 = doc.addObject("PartDesign::Pocket", "Pocket010")
body.addObject(pocket11)
pocket11.Profile = sketch14
pocket11.setExpression("Length", "Params.pocket11_length")

doc.recompute()
